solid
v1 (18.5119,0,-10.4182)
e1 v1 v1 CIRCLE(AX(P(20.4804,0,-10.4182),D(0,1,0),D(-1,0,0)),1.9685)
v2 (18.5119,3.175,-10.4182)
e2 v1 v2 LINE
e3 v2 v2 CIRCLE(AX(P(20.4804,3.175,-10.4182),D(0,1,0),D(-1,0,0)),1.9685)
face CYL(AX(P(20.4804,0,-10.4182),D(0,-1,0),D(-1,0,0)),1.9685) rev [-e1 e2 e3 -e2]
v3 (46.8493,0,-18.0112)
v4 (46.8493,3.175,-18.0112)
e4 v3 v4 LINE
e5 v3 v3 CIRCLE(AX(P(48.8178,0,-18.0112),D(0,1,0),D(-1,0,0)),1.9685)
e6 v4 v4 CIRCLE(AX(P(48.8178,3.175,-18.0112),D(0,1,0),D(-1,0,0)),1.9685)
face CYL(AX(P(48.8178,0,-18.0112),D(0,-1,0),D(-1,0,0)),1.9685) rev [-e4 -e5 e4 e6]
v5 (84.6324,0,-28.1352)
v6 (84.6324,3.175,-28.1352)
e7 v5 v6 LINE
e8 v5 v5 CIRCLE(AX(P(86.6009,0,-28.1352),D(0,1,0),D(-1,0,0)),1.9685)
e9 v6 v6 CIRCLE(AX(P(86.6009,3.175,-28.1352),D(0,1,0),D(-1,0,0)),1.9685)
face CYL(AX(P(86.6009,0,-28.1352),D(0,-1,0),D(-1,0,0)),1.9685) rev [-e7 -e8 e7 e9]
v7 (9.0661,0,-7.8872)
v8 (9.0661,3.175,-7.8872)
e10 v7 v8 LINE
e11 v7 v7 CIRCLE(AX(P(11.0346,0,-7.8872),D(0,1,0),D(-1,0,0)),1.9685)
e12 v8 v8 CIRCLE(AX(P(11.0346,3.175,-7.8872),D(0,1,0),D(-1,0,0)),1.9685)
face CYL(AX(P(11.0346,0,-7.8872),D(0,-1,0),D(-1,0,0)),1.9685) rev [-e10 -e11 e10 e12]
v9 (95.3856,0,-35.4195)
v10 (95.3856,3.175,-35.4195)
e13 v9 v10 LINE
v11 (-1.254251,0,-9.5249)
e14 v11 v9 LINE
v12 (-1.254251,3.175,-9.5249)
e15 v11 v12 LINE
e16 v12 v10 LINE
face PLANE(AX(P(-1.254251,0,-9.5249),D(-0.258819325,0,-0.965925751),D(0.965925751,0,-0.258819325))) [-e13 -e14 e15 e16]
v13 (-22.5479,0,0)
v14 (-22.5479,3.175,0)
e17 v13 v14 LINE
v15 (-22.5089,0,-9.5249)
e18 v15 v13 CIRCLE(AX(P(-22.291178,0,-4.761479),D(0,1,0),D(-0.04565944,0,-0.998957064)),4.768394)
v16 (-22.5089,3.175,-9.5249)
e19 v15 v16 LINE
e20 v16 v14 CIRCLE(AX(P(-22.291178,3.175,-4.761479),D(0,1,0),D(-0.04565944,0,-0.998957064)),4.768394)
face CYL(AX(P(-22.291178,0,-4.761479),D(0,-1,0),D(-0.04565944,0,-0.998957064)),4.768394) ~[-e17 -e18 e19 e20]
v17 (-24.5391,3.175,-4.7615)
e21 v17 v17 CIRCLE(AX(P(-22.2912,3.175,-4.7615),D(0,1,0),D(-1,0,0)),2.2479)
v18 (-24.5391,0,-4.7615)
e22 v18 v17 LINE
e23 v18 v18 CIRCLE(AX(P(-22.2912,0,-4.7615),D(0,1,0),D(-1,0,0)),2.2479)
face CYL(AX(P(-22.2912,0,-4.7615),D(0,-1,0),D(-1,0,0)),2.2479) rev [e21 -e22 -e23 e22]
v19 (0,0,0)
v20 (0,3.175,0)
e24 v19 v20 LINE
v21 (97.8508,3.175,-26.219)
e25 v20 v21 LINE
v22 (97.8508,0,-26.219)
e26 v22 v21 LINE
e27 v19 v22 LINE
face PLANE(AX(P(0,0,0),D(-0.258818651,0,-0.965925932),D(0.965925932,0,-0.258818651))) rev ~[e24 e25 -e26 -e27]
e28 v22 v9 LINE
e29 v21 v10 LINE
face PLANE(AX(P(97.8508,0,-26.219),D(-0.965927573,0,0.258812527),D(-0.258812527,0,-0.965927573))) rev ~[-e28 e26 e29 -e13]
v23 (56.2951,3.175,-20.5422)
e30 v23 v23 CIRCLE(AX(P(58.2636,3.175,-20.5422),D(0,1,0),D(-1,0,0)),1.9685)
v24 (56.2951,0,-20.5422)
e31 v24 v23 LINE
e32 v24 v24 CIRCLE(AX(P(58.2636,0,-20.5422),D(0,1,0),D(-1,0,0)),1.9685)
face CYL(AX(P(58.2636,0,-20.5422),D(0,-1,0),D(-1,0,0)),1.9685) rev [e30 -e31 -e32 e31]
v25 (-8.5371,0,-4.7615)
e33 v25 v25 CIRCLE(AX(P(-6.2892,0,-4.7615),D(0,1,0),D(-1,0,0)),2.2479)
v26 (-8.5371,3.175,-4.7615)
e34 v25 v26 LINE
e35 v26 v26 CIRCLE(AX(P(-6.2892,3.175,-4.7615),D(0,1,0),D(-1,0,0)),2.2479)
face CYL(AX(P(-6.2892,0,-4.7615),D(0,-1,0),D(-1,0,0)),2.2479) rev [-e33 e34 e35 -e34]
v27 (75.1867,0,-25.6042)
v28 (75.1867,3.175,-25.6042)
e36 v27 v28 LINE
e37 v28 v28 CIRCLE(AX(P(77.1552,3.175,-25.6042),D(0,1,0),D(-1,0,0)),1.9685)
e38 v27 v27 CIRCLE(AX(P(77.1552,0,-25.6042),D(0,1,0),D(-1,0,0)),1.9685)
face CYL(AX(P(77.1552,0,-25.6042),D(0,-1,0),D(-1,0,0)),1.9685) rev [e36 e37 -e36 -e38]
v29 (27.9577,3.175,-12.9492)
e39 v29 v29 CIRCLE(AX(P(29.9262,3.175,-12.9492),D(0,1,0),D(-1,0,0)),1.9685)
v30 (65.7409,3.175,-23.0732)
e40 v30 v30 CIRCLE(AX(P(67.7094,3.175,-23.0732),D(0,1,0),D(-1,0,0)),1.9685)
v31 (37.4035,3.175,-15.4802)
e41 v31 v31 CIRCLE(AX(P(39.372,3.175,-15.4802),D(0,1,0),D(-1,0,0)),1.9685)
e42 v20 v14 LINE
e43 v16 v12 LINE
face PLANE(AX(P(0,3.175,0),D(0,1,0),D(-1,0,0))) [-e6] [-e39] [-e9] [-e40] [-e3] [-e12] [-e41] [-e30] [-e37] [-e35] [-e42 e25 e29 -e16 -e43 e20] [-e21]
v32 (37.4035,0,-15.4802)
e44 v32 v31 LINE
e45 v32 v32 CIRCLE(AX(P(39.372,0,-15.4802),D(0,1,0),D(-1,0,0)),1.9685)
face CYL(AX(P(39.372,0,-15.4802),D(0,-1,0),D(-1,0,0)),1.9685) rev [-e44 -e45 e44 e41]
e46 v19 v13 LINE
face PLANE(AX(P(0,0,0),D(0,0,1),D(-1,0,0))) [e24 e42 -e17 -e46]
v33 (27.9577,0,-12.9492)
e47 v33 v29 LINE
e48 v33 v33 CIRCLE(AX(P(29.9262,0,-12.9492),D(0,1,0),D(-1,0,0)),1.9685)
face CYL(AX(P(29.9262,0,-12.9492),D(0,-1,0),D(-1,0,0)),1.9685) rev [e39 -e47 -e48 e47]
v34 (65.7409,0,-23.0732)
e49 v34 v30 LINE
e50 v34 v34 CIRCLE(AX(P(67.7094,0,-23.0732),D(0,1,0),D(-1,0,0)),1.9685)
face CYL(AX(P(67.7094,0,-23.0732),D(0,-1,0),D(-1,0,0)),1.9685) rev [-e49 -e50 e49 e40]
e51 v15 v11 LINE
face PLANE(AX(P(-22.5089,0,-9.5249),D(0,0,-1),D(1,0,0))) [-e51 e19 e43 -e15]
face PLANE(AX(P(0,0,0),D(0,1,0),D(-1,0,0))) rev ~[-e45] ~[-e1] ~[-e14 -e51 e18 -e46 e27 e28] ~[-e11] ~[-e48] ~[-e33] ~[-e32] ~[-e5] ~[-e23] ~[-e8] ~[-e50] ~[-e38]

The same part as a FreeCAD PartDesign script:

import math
import FreeCAD as App
import Part
import Sketcher
Q = App.Units.Quantity

doc = App.newDocument("Part")
body = doc.addObject("PartDesign::Body", "Body")

# Sketch on XZ plane
sketch1 = doc.addObject("Sketcher::SketchObject", "Sketch")
body.addObject(sketch1)
sketch1.AttachmentSupport = (doc.XZ_Plane, [""])
sketch1.MapMode = "FlatFace"
sketch1.addGeometry([
    Part.LineSegment(App.Vector(-22.5, 0, 0), App.Vector(0, 0, 0)),  # 0
    Part.LineSegment(App.Vector(0, 0, 0), App.Vector(97.9, -26.2, 0)),  # 1
    Part.LineSegment(App.Vector(97.9, -26.2, 0), App.Vector(95.4, -35.4, 0)),  # 2
    Part.LineSegment(App.Vector(95.4, -35.4, 0), App.Vector(-1.3, -9.5, 0)),  # 3
    Part.LineSegment(App.Vector(-1.3, -9.5, 0), App.Vector(-22.5, -9.5, 0)),  # 4
    Part.ArcOfCircle(Part.Circle(App.Vector(-22.3, -4.8, 0), App.Vector(0, 0, 1), 4.8), math.radians(93), math.radians(267)),  # 5
    Part.Circle(App.Vector(-6.3, -4.8, 0), App.Vector(0, 0, 1), 2.2),  # 6
    Part.Circle(App.Vector(-22.3, -4.8, 0), App.Vector(0, 0, 1), 2.2),  # 7
    Part.Circle(App.Vector(20.5, -10.4, 0), App.Vector(0, 0, 1), 2),  # 8
    Part.Circle(App.Vector(11, -7.9, 0), App.Vector(0, 0, 1), 2),  # 9
    Part.Circle(App.Vector(86.6, -28.1, 0), App.Vector(0, 0, 1), 2),  # 10
    Part.Circle(App.Vector(77.2, -25.6, 0), App.Vector(0, 0, 1), 2),  # 11
    Part.Circle(App.Vector(67.7, -23.1, 0), App.Vector(0, 0, 1), 2),  # 12
    Part.Circle(App.Vector(58.3, -20.5, 0), App.Vector(0, 0, 1), 2),  # 13
    Part.Circle(App.Vector(48.8, -18, 0), App.Vector(0, 0, 1), 2),  # 14
    Part.Circle(App.Vector(39.4, -15.5, 0), App.Vector(0, 0, 1), 2),  # 15
    Part.Circle(App.Vector(29.9, -12.9, 0), App.Vector(0, 0, 1), 2),  # 16
], False)
sketch1.addConstraint([
    Sketcher.Constraint("Coincident", 0, 2, 1, 1),
    Sketcher.Constraint("Coincident", 1, 2, 2, 1),
    Sketcher.Constraint("Coincident", 2, 2, 3, 1),
    Sketcher.Constraint("Coincident", 3, 2, 4, 1),
    Sketcher.Constraint("Coincident", 4, 2, 5, 2),
    Sketcher.Constraint("Coincident", 5, 1, 0, 1),
    Sketcher.Constraint("Horizontal", 0),
    Sketcher.Constraint("Horizontal", 4),
    Sketcher.Constraint("Coincident", 0, 2, -1, 1),
    Sketcher.Constraint("Coincident", 7, 3, 5, 3),
    Sketcher.Constraint("Equal", 6, 7),
    Sketcher.Constraint("Equal", 8, 9),
    Sketcher.Constraint("Equal", 9, 10),
    Sketcher.Constraint("Equal", 10, 11),
    Sketcher.Constraint("Equal", 11, 12),
    Sketcher.Constraint("Equal", 12, 13),
    Sketcher.Constraint("Equal", 13, 14),
    Sketcher.Constraint("Equal", 14, 15),
    Sketcher.Constraint("Equal", 15, 16),
    Sketcher.Constraint("Perpendicular", 1, 2),
    Sketcher.Constraint("Perpendicular", 2, 3),
    Sketcher.Constraint("Horizontal", 5, 3, 6, 3),
    Sketcher.Constraint("Diameter", 6, Q("0.177 in")),
    Sketcher.Constraint("Diameter", 8, Q("0.155 in")),
    Sketcher.Constraint("Angle", 3, Q("165 deg")),
    Sketcher.Constraint("Radius", 5, 4.7684),
    Sketcher.Constraint("DistanceX", 5, 3, 6, 3, Q("0.63 in")),
    Sketcher.Constraint("Distance", 2, Q("0.375 in")),
    Sketcher.Constraint("DistanceY", 3, 2, -1, 1, Q("0.375 in")),
    Sketcher.Constraint("DistanceX", 4, 2, 4, 1, Q("0.8368 in")),
    Sketcher.Constraint("Distance", 1, Q("3.9883 in")),
    Sketcher.Constraint("DistanceX", 0, 1, 0, 2, 22.548),
    Sketcher.Constraint("DistanceX", -1, 1, 11, 3, Q("3.0376 in")),
    Sketcher.Constraint("DistanceY", 12, 3, -1, 1, Q("0.9084 in")),
    Sketcher.Constraint("DistanceY", 14, 3, -1, 1, Q("0.7091 in")),
    Sketcher.Constraint("DistanceX", -1, 1, 16, 3, Q("1.1782 in")),
    Sketcher.Constraint("DistanceY", 16, 3, -1, 1, Q("0.5098 in")),
    Sketcher.Constraint("DistanceY", 8, 3, 6, 3, Q("0.2227 in")),
    Sketcher.Constraint("DistanceX", 6, 3, 10, 3, Q("3.6571 in")),
    Sketcher.Constraint("DistanceX", 8, 3, 11, 3, Q("2.2313 in")),
    Sketcher.Constraint("DistanceY", 10, 3, 12, 3, Q("0.1993 in")),
    Sketcher.Constraint("DistanceX", 8, 3, 12, 3, Q("1.8594 in")),
    Sketcher.Constraint("DistanceX", 9, 3, 12, 3, Q("2.2313 in")),
    Sketcher.Constraint("DistanceY", 11, 3, 13, 3, Q("0.1993 in")),
    Sketcher.Constraint("DistanceX", 9, 3, 13, 3, Q("1.8594 in")),
    Sketcher.Constraint("DistanceY", 13, 3, 15, 3, Q("0.1993 in")),
    Sketcher.Constraint("DistanceY", 15, 3, 8, 3, Q("0.1993 in")),
    Sketcher.Constraint("DistanceY", 16, 3, 9, 3, Q("0.1993 in")),
    Sketcher.Constraint("DistanceX", -1, 1, 14, 3, 48.8178),
    Sketcher.Constraint("DistanceX", -1, 1, 15, 3, 39.372),
])
pad1 = doc.addObject("PartDesign::Pad", "Pad")
body.addObject(pad1)
pad1.Profile = sketch1
pad1.Length = Q("0.125 in")
pad1.Reversed = True

doc.recompute()
